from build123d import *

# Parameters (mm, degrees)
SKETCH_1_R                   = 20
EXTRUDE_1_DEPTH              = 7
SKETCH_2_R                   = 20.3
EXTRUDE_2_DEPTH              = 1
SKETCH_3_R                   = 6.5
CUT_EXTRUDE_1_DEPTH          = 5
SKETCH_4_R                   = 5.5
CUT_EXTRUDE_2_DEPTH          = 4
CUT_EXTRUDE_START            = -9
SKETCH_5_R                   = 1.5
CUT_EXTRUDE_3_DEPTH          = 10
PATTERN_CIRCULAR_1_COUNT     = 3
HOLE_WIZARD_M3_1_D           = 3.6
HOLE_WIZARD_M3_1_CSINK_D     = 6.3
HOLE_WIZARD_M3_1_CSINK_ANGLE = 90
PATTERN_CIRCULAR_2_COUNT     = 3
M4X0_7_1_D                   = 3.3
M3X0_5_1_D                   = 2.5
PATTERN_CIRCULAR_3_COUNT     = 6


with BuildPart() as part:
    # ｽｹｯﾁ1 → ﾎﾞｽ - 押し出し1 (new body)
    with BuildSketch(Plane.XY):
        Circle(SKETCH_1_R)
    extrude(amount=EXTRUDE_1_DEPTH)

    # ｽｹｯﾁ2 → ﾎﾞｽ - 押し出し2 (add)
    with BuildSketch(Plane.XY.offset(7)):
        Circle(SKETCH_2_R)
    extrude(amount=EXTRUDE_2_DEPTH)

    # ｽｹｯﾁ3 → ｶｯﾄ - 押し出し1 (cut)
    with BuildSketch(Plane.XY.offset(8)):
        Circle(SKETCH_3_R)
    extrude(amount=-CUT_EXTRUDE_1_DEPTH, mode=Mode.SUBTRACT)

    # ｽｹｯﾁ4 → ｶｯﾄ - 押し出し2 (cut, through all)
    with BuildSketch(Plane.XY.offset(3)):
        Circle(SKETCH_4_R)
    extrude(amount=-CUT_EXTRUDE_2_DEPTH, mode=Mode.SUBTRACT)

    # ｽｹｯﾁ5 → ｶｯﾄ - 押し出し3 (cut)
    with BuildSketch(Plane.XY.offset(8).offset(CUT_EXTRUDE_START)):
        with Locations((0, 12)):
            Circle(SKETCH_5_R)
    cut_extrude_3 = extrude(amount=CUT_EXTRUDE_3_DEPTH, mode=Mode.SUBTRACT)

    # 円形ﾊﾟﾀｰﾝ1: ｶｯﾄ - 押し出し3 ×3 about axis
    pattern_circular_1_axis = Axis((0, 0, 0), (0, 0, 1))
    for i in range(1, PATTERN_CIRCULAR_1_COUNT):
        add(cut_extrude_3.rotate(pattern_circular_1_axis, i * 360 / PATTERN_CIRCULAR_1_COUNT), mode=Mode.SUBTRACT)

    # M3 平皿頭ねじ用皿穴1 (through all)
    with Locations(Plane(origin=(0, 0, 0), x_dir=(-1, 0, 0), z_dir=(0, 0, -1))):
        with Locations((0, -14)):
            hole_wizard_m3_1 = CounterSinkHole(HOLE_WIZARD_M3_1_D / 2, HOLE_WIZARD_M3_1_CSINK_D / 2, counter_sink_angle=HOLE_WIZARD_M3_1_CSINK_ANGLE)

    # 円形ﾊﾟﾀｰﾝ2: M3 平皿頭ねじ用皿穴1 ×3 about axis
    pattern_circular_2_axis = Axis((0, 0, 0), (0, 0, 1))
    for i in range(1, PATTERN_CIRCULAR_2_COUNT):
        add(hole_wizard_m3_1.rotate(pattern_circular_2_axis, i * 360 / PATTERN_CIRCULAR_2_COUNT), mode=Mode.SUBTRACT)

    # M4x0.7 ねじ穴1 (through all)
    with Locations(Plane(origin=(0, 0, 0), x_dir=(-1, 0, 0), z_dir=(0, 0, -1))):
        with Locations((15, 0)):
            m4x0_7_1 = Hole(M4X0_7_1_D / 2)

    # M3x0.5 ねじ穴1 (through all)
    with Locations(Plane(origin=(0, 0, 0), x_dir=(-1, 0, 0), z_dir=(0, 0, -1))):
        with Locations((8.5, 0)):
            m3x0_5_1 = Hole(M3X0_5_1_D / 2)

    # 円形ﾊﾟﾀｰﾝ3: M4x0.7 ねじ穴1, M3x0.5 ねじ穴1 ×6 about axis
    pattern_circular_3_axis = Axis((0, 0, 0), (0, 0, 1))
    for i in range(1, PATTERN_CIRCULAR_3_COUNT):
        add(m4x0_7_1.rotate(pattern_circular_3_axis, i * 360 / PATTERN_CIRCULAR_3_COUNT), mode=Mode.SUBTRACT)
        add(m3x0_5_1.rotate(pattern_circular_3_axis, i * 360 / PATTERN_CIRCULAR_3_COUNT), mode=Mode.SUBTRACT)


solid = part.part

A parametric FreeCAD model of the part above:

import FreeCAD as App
import Part
import Sketcher
from FreeCAD import Vector

doc = App.newDocument("Part")
body = doc.addObject("PartDesign::Body", "Body")

# Sketch on XY plane
sketch1 = body.newObject("Sketcher::SketchObject", "Sketch")
sketch1.AttachmentSupport = (doc.getObject("XY_Plane"), [""])
sketch1.MapMode = "FlatFace"
sketch1.addGeometry(Part.Circle(Vector(0, 0, 0), Vector(0, 0, 1), 20), False)
sketch1.addConstraint(Sketcher.Constraint("Coincident", 0, 3, -1, 1))
sketch1.addConstraint(Sketcher.Constraint("Diameter", 0, 40.0))
pad1 = body.newObject("PartDesign::Pad", "Pad")
pad1.Profile = sketch1
pad1.Length = 7

# Sketch on XY plane
sketch2 = body.newObject("Sketcher::SketchObject", "Sketch001")
sketch2.AttachmentSupport = (doc.getObject("XY_Plane"), [""])
sketch2.MapMode = "FlatFace"
sketch2.AttachmentOffset = App.Placement(Vector(0, 0, 7), App.Rotation())
sketch2.addGeometry(Part.Circle(Vector(0, 0, 0), Vector(0, 0, 1), 20), False)
sketch2.addConstraint(Sketcher.Constraint("Coincident", 0, 3, -1, 1))
sketch2.addConstraint(Sketcher.Constraint("Diameter", 0, 40.6))
pad2 = body.newObject("PartDesign::Pad", "Pad001")
pad2.Profile = sketch2
pad2.Length = 1

# Sketch on XY plane
sketch3 = body.newObject("Sketcher::SketchObject", "Sketch002")
sketch3.AttachmentSupport = (doc.getObject("XY_Plane"), [""])
sketch3.MapMode = "FlatFace"
sketch3.AttachmentOffset = App.Placement(Vector(0, 0, 8), App.Rotation())
sketch3.addGeometry(Part.Circle(Vector(0, 0, 0), Vector(0, 0, 1), 6), False)
sketch3.addConstraint(Sketcher.Constraint("Coincident", 0, 3, -1, 1))
sketch3.addConstraint(Sketcher.Constraint("Diameter", 0, 13.0))
pocket1 = body.newObject("PartDesign::Pocket", "Pocket")
pocket1.Profile = sketch3
pocket1.Length = 5

# Sketch on XY plane
sketch4 = body.newObject("Sketcher::SketchObject", "Sketch003")
sketch4.AttachmentSupport = (doc.getObject("XY_Plane"), [""])
sketch4.MapMode = "FlatFace"
sketch4.AttachmentOffset = App.Placement(Vector(0, 0, 3), App.Rotation())
sketch4.addGeometry(Part.Circle(Vector(0, 0, 0), Vector(0, 0, 1), 6), False)
sketch4.addConstraint(Sketcher.Constraint("Coincident", 0, 3, -1, 1))
sketch4.addConstraint(Sketcher.Constraint("Diameter", 0, 11.0))
pocket2 = body.newObject("PartDesign::Pocket", "Pocket001")
pocket2.Profile = sketch4
pocket2.Type = "ThroughAll"

# Sketch on XY plane
sketch5 = body.newObject("Sketcher::SketchObject", "Sketch004")
sketch5.AttachmentSupport = (doc.getObject("XY_Plane"), [""])
sketch5.MapMode = "FlatFace"
sketch5.AttachmentOffset = App.Placement(Vector(0, 0, -1), App.Rotation())
sketch5.addGeometry(Part.Circle(Vector(0, 12, 0), Vector(0, 0, 1), 1.5), False)
sketch5.addConstraint(Sketcher.Constraint("PointOnObject", 0, 3, -2))
sketch5.addConstraint(Sketcher.Constraint("Diameter", 0, 3.0))
sketch5.addConstraint(Sketcher.Constraint("DistanceY", -1, 1, 0, 3, 12.0))
pocket3 = body.newObject("PartDesign::Pocket", "Pocket002")
pocket3.Profile = sketch5
pocket3.Length = 10
pocket3.Reversed = True
doc.recompute()

polarpattern = body.newObject("PartDesign::PolarPattern", "PolarPattern")
polarpattern.Originals = [pocket3]
polarpattern.Axis = (doc.getObject("Z_Axis"), [""])
polarpattern.Angle = 360
polarpattern.Occurrences = 3
body.Tip = polarpattern

# Sketch on XY plane
sketch6 = body.newObject("Sketcher::SketchObject", "Sketch005")
sketch6.AttachmentSupport = (doc.getObject("XY_Plane"), [""])
sketch6.MapMode = "FlatFace"
sketch6.addGeometry(Part.Circle(Vector(0, -14, 0), Vector(0, 0, 1), 1.8), False)
sketch6.addConstraint(Sketcher.Constraint("PointOnObject", 0, 3, -2))
sketch6.addConstraint(Sketcher.Constraint("Diameter", 0, 3.6))
sketch6.addConstraint(Sketcher.Constraint("DistanceY", 0, 3, -1, 1, 14.0))
doc.recompute()
hole = body.newObject("PartDesign::Hole", "Hole")
hole.Profile = sketch6
hole.ThreadType = "None"
hole.Diameter = 3.6
hole.DepthType = "ThroughAll"
hole.HoleCutType = "Countersink"
hole.HoleCutDiameter = 6.3
hole.HoleCutCountersinkAngle = 90
hole.Reversed = True
doc.recompute()

polarpattern2 = body.newObject("PartDesign::PolarPattern", "PolarPattern001")
polarpattern2.Originals = [hole]
polarpattern2.Axis = (doc.getObject("Z_Axis"), [""])
polarpattern2.Angle = 360
polarpattern2.Occurrences = 3
body.Tip = polarpattern2

# Sketch on XY plane
sketch7 = body.newObject("Sketcher::SketchObject", "Sketch006")
sketch7.AttachmentSupport = (doc.getObject("XY_Plane"), [""])
sketch7.MapMode = "FlatFace"
sketch7.addGeometry(Part.Circle(Vector(-15, 0, 0), Vector(0, 0, 1), 1.6), False)
sketch7.addConstraint(Sketcher.Constraint("PointOnObject", 0, 3, -1))
sketch7.addConstraint(Sketcher.Constraint("Diameter", 0, 3.3))
sketch7.addConstraint(Sketcher.Constraint("DistanceX", 0, 3, -1, 1, 15.0))
doc.recompute()
hole2 = body.newObject("PartDesign::Hole", "Hole001")
hole2.Profile = sketch7
hole2.ThreadType = "None"
hole2.Diameter = 3.3
hole2.DepthType = "ThroughAll"
hole2.Reversed = True

# Sketch on XY plane
sketch8 = body.newObject("Sketcher::SketchObject", "Sketch007")
sketch8.AttachmentSupport = (doc.getObject("XY_Plane"), [""])
sketch8.MapMode = "FlatFace"
sketch8.addGeometry(Part.Circle(Vector(-8.5, 0, 0), Vector(0, 0, 1), 1.2), False)
sketch8.addConstraint(Sketcher.Constraint("PointOnObject", 0, 3, -1))
sketch8.addConstraint(Sketcher.Constraint("Diameter", 0, 2.5))
sketch8.addConstraint(Sketcher.Constraint("DistanceX", 0, 3, -1, 1, 8.5))
doc.recompute()
hole3 = body.newObject("PartDesign::Hole", "Hole002")
hole3.Profile = sketch8
hole3.ThreadType = "None"
hole3.Diameter = 2.5
hole3.DepthType = "ThroughAll"
hole3.Reversed = True
doc.recompute()

polarpattern3 = body.newObject("PartDesign::PolarPattern", "PolarPattern002")
polarpattern3.Originals = [hole2, hole3]
polarpattern3.Axis = (doc.getObject("Z_Axis"), [""])
polarpattern3.Angle = 360
polarpattern3.Occurrences = 6
body.Tip = polarpattern3

doc.recompute()
